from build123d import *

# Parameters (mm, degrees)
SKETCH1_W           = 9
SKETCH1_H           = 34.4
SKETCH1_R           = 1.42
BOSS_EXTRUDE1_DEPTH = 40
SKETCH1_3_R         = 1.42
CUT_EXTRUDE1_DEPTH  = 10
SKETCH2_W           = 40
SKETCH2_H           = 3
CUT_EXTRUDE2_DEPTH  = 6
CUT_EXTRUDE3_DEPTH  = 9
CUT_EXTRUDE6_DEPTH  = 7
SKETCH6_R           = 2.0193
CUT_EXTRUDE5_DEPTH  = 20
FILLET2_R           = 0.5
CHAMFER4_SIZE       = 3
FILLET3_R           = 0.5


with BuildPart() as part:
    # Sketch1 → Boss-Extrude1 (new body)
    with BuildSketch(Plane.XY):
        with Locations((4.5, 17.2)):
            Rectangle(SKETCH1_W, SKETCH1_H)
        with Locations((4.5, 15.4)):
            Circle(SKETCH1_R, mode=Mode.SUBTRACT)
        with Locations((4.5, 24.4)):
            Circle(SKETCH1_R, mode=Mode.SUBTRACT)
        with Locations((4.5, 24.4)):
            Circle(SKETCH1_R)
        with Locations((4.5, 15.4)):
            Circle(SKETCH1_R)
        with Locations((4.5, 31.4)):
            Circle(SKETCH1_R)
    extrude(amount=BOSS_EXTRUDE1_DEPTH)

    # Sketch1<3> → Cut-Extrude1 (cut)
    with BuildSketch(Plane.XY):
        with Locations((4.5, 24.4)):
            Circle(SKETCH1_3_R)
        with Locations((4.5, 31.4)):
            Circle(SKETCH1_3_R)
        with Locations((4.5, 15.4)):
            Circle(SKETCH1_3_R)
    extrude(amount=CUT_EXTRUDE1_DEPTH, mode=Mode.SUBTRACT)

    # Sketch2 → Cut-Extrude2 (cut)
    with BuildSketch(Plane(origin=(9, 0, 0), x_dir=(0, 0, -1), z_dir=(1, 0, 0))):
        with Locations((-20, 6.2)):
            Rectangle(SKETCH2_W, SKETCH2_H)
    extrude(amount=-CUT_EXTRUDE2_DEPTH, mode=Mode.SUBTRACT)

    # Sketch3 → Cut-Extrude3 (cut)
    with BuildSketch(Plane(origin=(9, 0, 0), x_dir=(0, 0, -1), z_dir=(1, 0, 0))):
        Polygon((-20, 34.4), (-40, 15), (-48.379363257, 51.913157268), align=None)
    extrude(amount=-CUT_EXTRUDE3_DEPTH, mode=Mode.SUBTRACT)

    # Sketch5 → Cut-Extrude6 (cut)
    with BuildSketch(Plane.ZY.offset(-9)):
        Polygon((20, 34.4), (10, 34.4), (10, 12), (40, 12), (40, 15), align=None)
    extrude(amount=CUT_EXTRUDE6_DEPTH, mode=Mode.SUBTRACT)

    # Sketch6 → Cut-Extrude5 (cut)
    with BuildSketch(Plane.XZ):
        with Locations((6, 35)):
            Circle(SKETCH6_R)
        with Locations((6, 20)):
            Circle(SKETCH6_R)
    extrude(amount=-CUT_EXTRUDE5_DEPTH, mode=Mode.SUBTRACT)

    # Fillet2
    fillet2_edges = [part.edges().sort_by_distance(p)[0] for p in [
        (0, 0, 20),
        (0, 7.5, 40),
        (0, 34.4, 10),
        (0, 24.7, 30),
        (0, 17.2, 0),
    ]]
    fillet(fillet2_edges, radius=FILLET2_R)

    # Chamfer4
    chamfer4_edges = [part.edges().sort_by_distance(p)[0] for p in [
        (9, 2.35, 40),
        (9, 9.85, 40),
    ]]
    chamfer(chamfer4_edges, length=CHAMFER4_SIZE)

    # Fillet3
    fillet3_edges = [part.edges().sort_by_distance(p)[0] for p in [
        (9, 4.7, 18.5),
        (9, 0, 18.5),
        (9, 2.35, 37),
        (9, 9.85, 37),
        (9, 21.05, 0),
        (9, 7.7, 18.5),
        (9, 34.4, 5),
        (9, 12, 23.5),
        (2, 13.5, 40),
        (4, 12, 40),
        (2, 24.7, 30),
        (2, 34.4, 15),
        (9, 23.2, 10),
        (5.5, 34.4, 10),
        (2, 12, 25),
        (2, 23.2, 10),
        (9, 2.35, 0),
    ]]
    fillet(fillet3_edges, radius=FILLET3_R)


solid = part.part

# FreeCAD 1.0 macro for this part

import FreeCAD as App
import Part
import Sketcher


def edges_at(feature, points):
    """Names of the edges that pass closest to the given points."""
    edges = feature.Shape.Edges
    near = lambda p: min(range(len(edges)), key=lambda i: edges[i].distToShape(Part.Vertex(*p))[0])
    return sorted({f"Edge{near(p) + 1}" for p in points})

doc = App.newDocument("Part")
body = doc.addObject("PartDesign::Body", "Body")

# Sketch on XY plane
sketch1 = body.newObject("Sketcher::SketchObject", "Sketch")
sketch1.AttachmentSupport = (doc.getObject("XY_Plane"), [""])
sketch1.MapMode = "FlatFace"
sketch1.addGeometry(Part.LineSegment(App.Vector(0, 34.4, 0), App.Vector(0, 0, 0)), False)
sketch1.addGeometry(Part.LineSegment(App.Vector(0, 0, 0), App.Vector(9, 0, 0)), False)
sketch1.addGeometry(Part.LineSegment(App.Vector(9, 0, 0), App.Vector(9, 34.4, 0)), False)
sketch1.addGeometry(Part.LineSegment(App.Vector(9, 34.4, 0), App.Vector(0, 34.4, 0)), False)
sketch1.addConstraint(Sketcher.Constraint("Coincident", 0, 2, 1, 1))
sketch1.addConstraint(Sketcher.Constraint("Coincident", 1, 2, 2, 1))
sketch1.addConstraint(Sketcher.Constraint("Coincident", 2, 2, 3, 1))
sketch1.addConstraint(Sketcher.Constraint("Coincident", 3, 2, 0, 1))
sketch1.addConstraint(Sketcher.Constraint("Vertical", 0))
sketch1.addConstraint(Sketcher.Constraint("Horizontal", 1))
sketch1.addConstraint(Sketcher.Constraint("Vertical", 2))
sketch1.addConstraint(Sketcher.Constraint("Horizontal", 3))
sketch1.addConstraint(Sketcher.Constraint("Coincident", 0, 2, -1, 1))
sketch1.addConstraint(Sketcher.Constraint("DistanceX", 1, 1, 1, 2, 9.0))
sketch1.addConstraint(Sketcher.Constraint("DistanceY", 0, 2, 0, 1, 34.4))
pad1 = body.newObject("PartDesign::Pad", "Pad")
pad1.Profile = sketch1
pad1.Length = 40

# Sketch on XY plane
sketch2 = body.newObject("Sketcher::SketchObject", "Sketch001")
sketch2.AttachmentSupport = (doc.getObject("XY_Plane"), [""])
sketch2.MapMode = "FlatFace"
sketch2.addGeometry(Part.Circle(App.Vector(4.5, 24.4, 0), App.Vector(0, 0, 1), 1.42), False)
sketch2.addGeometry(Part.Circle(App.Vector(4.5, 31.4, 0), App.Vector(0, 0, 1), 1.42), False)
sketch2.addGeometry(Part.Circle(App.Vector(4.5, 15.4, 0), App.Vector(0, 0, 1), 1.42), False)
sketch2.addConstraint(Sketcher.Constraint("Equal", 0, 1))
sketch2.addConstraint(Sketcher.Constraint("Equal", 1, 2))
sketch2.addConstraint(Sketcher.Constraint("Vertical", 0, 3, 1, 3))
sketch2.addConstraint(Sketcher.Constraint("Vertical", 1, 3, 2, 3))
sketch2.addConstraint(Sketcher.Constraint("Diameter", 0, 2.84))
sketch2.addConstraint(Sketcher.Constraint("DistanceY", 0, 3, 1, 3, 7.0))
sketch2.addConstraint(Sketcher.Constraint("DistanceY", 2, 3, 0, 3, 9.0))
sketch2.addConstraint(Sketcher.Constraint("DistanceX", -1, 1, 0, 3, 4.5))
sketch2.addConstraint(Sketcher.Constraint("DistanceY", -1, 1, 0, 3, 24.4))
pocket1 = body.newObject("PartDesign::Pocket", "Pocket")
pocket1.Profile = sketch2
pocket1.Length = 10
pocket1.Reversed = True

# Sketch on YZ plane
sketch3 = body.newObject("Sketcher::SketchObject", "Sketch002")
sketch3.AttachmentSupport = (doc.getObject("YZ_Plane"), [""])
sketch3.MapMode = "FlatFace"
sketch3.AttachmentOffset = App.Placement(App.Vector(0, 0, 9), App.Rotation())
sketch3.addGeometry(Part.LineSegment(App.Vector(7.7, 40, 0), App.Vector(4.7, 40, 0)), False)
sketch3.addGeometry(Part.LineSegment(App.Vector(4.7, 40, 0), App.Vector(4.7, 0, 0)), False)
sketch3.addGeometry(Part.LineSegment(App.Vector(4.7, 0, 0), App.Vector(7.7, 0, 0)), False)
sketch3.addGeometry(Part.LineSegment(App.Vector(7.7, 0, 0), App.Vector(7.7, 40, 0)), False)
sketch3.addConstraint(Sketcher.Constraint("Coincident", 0, 2, 1, 1))
sketch3.addConstraint(Sketcher.Constraint("Coincident", 1, 2, 2, 1))
sketch3.addConstraint(Sketcher.Constraint("Coincident", 2, 2, 3, 1))
sketch3.addConstraint(Sketcher.Constraint("Coincident", 3, 2, 0, 1))
sketch3.addConstraint(Sketcher.Constraint("Horizontal", 0))
sketch3.addConstraint(Sketcher.Constraint("Vertical", 1))
sketch3.addConstraint(Sketcher.Constraint("Horizontal", 2))
sketch3.addConstraint(Sketcher.Constraint("Vertical", 3))
sketch3.addConstraint(Sketcher.Constraint("PointOnObject", 1, 2, -1))
sketch3.addConstraint(Sketcher.Constraint("DistanceX", 0, 2, 0, 1, 3.0))
sketch3.addConstraint(Sketcher.Constraint("DistanceY", 1, 2, 1, 1, 40.0))
sketch3.addConstraint(Sketcher.Constraint("DistanceX", -1, 1, 0, 2, 4.7))
pocket2 = body.newObject("PartDesign::Pocket", "Pocket001")
pocket2.Profile = sketch3
pocket2.Length = 6

# Sketch on YZ plane
sketch4 = body.newObject("Sketcher::SketchObject", "Sketch003")
sketch4.AttachmentSupport = (doc.getObject("YZ_Plane"), [""])
sketch4.MapMode = "FlatFace"
sketch4.AttachmentOffset = App.Placement(App.Vector(0, 0, 9), App.Rotation())
sketch4.addGeometry(Part.LineSegment(App.Vector(15, 40, 0), App.Vector(34.4, 20, 0)), False)
sketch4.addGeometry(Part.LineSegment(App.Vector(34.4, 20, 0), App.Vector(51.913157, 48.379363, 0)), False)
sketch4.addGeometry(Part.LineSegment(App.Vector(51.913157, 48.379363, 0), App.Vector(15, 40, 0)), False)
sketch4.addConstraint(Sketcher.Constraint("Coincident", 0, 2, 1, 1))
sketch4.addConstraint(Sketcher.Constraint("Coincident", 1, 2, 2, 1))
sketch4.addConstraint(Sketcher.Constraint("Coincident", 2, 2, 0, 1))
sketch4.addConstraint(Sketcher.Constraint("DistanceY", -1, 1, 0, 2, 20.0))
sketch4.addConstraint(Sketcher.Constraint("DistanceX", -1, 1, 2, 2, 15.0))
sketch4.addConstraint(Sketcher.Constraint("DistanceY", -1, 1, 2, 2, 40.0))
sketch4.addConstraint(Sketcher.Constraint("DistanceX", -1, 1, 0, 2, 34.4))
sketch4.addConstraint(Sketcher.Constraint("Distance", 1, 33.348147))
sketch4.addConstraint(Sketcher.Constraint("Distance", 2, 37.852277))
pocket3 = body.newObject("PartDesign::Pocket", "Pocket002")
pocket3.Profile = sketch4
pocket3.Length = 9

# Sketch on YZ plane
sketch5 = body.newObject("Sketcher::SketchObject", "Sketch004")
sketch5.AttachmentSupport = (doc.getObject("YZ_Plane"), [""])
sketch5.MapMode = "FlatFace"
sketch5.AttachmentOffset = App.Placement(App.Vector(0, 0, 9), App.Rotation())
sketch5.addGeometry(Part.LineSegment(App.Vector(34.4, 20, 0), App.Vector(34.4, 10, 0)), False)
sketch5.addGeometry(Part.LineSegment(App.Vector(34.4, 10, 0), App.Vector(12, 10, 0)), False)
sketch5.addGeometry(Part.LineSegment(App.Vector(12, 10, 0), App.Vector(12, 40, 0)), False)
sketch5.addGeometry(Part.LineSegment(App.Vector(12, 40, 0), App.Vector(15, 40, 0)), False)
sketch5.addGeometry(Part.LineSegment(App.Vector(15, 40, 0), App.Vector(34.4, 20, 0)), False)
sketch5.addConstraint(Sketcher.Constraint("Coincident", 0, 2, 1, 1))
sketch5.addConstraint(Sketcher.Constraint("Coincident", 1, 2, 2, 1))
sketch5.addConstraint(Sketcher.Constraint("Coincident", 2, 2, 3, 1))
sketch5.addConstraint(Sketcher.Constraint("Coincident", 3, 2, 4, 1))
sketch5.addConstraint(Sketcher.Constraint("Coincident", 4, 2, 0, 1))
sketch5.addConstraint(Sketcher.Constraint("Vertical", 0))
sketch5.addConstraint(Sketcher.Constraint("Horizontal", 1))
sketch5.addConstraint(Sketcher.Constraint("Vertical", 2))
sketch5.addConstraint(Sketcher.Constraint("Horizontal", 3))
sketch5.addConstraint(Sketcher.Constraint("DistanceX", 3, 1, 3, 2, 3.0))
sketch5.addConstraint(Sketcher.Constraint("DistanceY", 0, 2, 0, 1, 10.0))
sketch5.addConstraint(Sketcher.Constraint("DistanceY", 2, 1, 2, 2, 30.0))
sketch5.addConstraint(Sketcher.Constraint("DistanceX", 1, 2, 1, 1, 22.4))
sketch5.addConstraint(Sketcher.Constraint("DistanceY", -1, 1, 0, 2, 10.0))
sketch5.addConstraint(Sketcher.Constraint("DistanceX", -1, 1, 1, 2, 12.0))
pocket4 = body.newObject("PartDesign::Pocket", "Pocket003")
pocket4.Profile = sketch5
pocket4.Length = 7

# Sketch on XZ plane
sketch6 = body.newObject("Sketcher::SketchObject", "Sketch005")
sketch6.AttachmentSupport = (doc.getObject("XZ_Plane"), [""])
sketch6.MapMode = "FlatFace"
sketch6.addGeometry(Part.Circle(App.Vector(6, 35, 0), App.Vector(0, 0, 1), 2.0193), False)
sketch6.addGeometry(Part.Circle(App.Vector(6, 20, 0), App.Vector(0, 0, 1), 2.0193), False)
sketch6.addConstraint(Sketcher.Constraint("Equal", 0, 1))
sketch6.addConstraint(Sketcher.Constraint("Vertical", 0, 3, 1, 3))
sketch6.addConstraint(Sketcher.Constraint("DistanceX", -1, 1, 0, 3, 6.0))
sketch6.addConstraint(Sketcher.Constraint("DistanceY", -1, 1, 0, 3, 35.0))
sketch6.addConstraint(Sketcher.Constraint("DistanceY", -1, 1, 1, 3, 20.0))
sketch6.addConstraint(Sketcher.Constraint("Diameter", 0, 4.0386))
pocket5 = body.newObject("PartDesign::Pocket", "Pocket004")
pocket5.Profile = sketch6
pocket5.Length = 20
doc.recompute()

fillet = body.newObject("PartDesign::Fillet", "Fillet")
fillet.Base = (pocket5, edges_at(pocket5, [
    (0, 0, 20),
    (0, 7.5, 40),
    (0, 34.4, 10),
    (0, 24.7, 30),
    (0, 17.2, 0),
]))
fillet.Radius = 0.5
doc.recompute()

chamfer = body.newObject("PartDesign::Chamfer", "Chamfer")
chamfer.Base = (fillet, edges_at(fillet, [(9, 2.35, 40), (9, 9.85, 40)]))
chamfer.Size = 3
doc.recompute()

fillet2 = body.newObject("PartDesign::Fillet", "Fillet001")
fillet2.Base = (chamfer, edges_at(chamfer, [
    (9, 4.7, 18.5),
    (9, 0, 18.5),
    (9, 2.35, 37),
    (9, 9.85, 37),
    (9, 21.05, 0),
    (9, 7.7, 18.5),
    (9, 34.4, 5),
    (9, 12, 23.5),
    (2, 13.5, 40),
    (4, 12, 40),
    (2, 24.7, 30),
    (2, 34.4, 15),
    (9, 23.2, 10),
    (5.5, 34.4, 10),
    (2, 12, 25),
    (2, 23.2, 10),
    (9, 2.35, 0),
]))
fillet2.Radius = 0.5

doc.recompute()
